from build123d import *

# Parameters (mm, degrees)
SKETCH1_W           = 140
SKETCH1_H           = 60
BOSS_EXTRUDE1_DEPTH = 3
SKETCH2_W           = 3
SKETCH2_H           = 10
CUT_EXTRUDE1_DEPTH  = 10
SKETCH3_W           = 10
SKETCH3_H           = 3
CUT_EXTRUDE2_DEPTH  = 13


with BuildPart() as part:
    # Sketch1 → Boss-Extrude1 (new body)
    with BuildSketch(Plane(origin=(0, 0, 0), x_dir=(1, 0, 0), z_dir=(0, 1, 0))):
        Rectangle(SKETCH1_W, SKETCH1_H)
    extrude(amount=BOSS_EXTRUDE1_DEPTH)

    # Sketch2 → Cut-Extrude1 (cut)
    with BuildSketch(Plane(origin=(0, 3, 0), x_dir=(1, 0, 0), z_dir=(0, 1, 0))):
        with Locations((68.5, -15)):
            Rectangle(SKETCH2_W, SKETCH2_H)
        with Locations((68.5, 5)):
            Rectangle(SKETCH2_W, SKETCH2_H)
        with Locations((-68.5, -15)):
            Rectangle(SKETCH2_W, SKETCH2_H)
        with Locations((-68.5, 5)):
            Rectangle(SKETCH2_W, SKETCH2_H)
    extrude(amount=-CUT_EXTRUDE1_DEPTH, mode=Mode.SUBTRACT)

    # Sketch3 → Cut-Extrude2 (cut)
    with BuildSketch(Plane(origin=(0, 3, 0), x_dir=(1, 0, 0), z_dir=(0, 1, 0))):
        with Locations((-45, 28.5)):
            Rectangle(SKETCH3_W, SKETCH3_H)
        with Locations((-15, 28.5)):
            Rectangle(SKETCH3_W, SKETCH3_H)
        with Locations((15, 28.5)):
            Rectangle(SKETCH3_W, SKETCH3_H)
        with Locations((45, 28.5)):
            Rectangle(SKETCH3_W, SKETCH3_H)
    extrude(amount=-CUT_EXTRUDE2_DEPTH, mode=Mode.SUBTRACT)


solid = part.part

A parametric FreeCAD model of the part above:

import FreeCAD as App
import Part
import Sketcher

V = App.Vector

doc = App.newDocument("Part")
body = doc.addObject("PartDesign::Body", "Body")

# Sketch on XZ plane
sketch1 = body.newObject("Sketcher::SketchObject", "Sketch")
sketch1.AttachmentSupport = (doc.getObject("XZ_Plane"), [""])
sketch1.MapMode = "FlatFace"
sketch1.addGeometry([
    Part.LineSegment(V(-70, -30, 0), V(-70, 30, 0)),
    Part.LineSegment(V(-70, 30, 0), V(70, 30, 0)),
    Part.LineSegment(V(70, 30, 0), V(70, -30, 0)),
    Part.LineSegment(V(70, -30, 0), V(-70, -30, 0)),
], False)
sketch1.addConstraint([
    Sketcher.Constraint("Coincident", 0, 2, 1, 1),
    Sketcher.Constraint("Coincident", 1, 2, 2, 1),
    Sketcher.Constraint("Coincident", 2, 2, 3, 1),
    Sketcher.Constraint("Coincident", 3, 2, 0, 1),
    Sketcher.Constraint("Vertical", 0),
    Sketcher.Constraint("Horizontal", 1),
    Sketcher.Constraint("Vertical", 2),
    Sketcher.Constraint("Horizontal", 3),
    Sketcher.Constraint("Symmetric", 0, 2, 2, 2, -1, 1),
    Sketcher.Constraint("DistanceX", 1, 1, 1, 2, 140.0),
    Sketcher.Constraint("DistanceY", 0, 1, 0, 2, 60.0),
])
pad1 = body.newObject("PartDesign::Pad", "Pad")
pad1.Profile = sketch1
pad1.Length = 3
pad1.Reversed = True

# Sketch on XZ plane
sketch2 = body.newObject("Sketcher::SketchObject", "Sketch001")
sketch2.AttachmentSupport = (doc.getObject("XZ_Plane"), [""])
sketch2.MapMode = "FlatFace"
sketch2.AttachmentOffset = App.Placement(V(0, 0, -3), App.Rotation())
sketch2.addGeometry([
    Part.LineSegment(V(67, 10, 0), V(67, 20, 0)),  # 0
    Part.LineSegment(V(67, 20, 0), V(70, 20, 0)),  # 1
    Part.LineSegment(V(70, 20, 0), V(70, 10, 0)),  # 2
    Part.LineSegment(V(70, 10, 0), V(67, 10, 0)),  # 3
    Part.LineSegment(V(67, -10, 0), V(67, 0, 0)),  # 4
    Part.LineSegment(V(67, 0, 0), V(70, 0, 0)),  # 5
    Part.LineSegment(V(70, 0, 0), V(70, -10, 0)),  # 6
    Part.LineSegment(V(70, -10, 0), V(67, -10, 0)),  # 7
    Part.LineSegment(V(-70, 10, 0), V(-70, 20, 0)),  # 8
    Part.LineSegment(V(-70, 20, 0), V(-67, 20, 0)),  # 9
    Part.LineSegment(V(-67, 20, 0), V(-67, 10, 0)),  # 10
    Part.LineSegment(V(-67, 10, 0), V(-70, 10, 0)),  # 11
    Part.LineSegment(V(-70, -10, 0), V(-70, 0, 0)),  # 12
    Part.LineSegment(V(-70, 0, 0), V(-67, 0, 0)),  # 13
    Part.LineSegment(V(-67, 0, 0), V(-67, -10, 0)),  # 14
    Part.LineSegment(V(-67, -10, 0), V(-70, -10, 0)),  # 15
], False)
sketch2.addConstraint([
    Sketcher.Constraint("Coincident", 0, 2, 1, 1),
    Sketcher.Constraint("Coincident", 1, 2, 2, 1),
    Sketcher.Constraint("Coincident", 2, 2, 3, 1),
    Sketcher.Constraint("Coincident", 3, 2, 0, 1),
    Sketcher.Constraint("Coincident", 4, 2, 5, 1),
    Sketcher.Constraint("Coincident", 5, 2, 6, 1),
    Sketcher.Constraint("Coincident", 6, 2, 7, 1),
    Sketcher.Constraint("Coincident", 7, 2, 4, 1),
    Sketcher.Constraint("Coincident", 8, 2, 9, 1),
    Sketcher.Constraint("Coincident", 9, 2, 10, 1),
    Sketcher.Constraint("Coincident", 10, 2, 11, 1),
    Sketcher.Constraint("Coincident", 11, 2, 8, 1),
    Sketcher.Constraint("Coincident", 12, 2, 13, 1),
    Sketcher.Constraint("Coincident", 13, 2, 14, 1),
    Sketcher.Constraint("Coincident", 14, 2, 15, 1),
    Sketcher.Constraint("Coincident", 15, 2, 12, 1),
    Sketcher.Constraint("Vertical", 0),
    Sketcher.Constraint("Horizontal", 1),
    Sketcher.Constraint("Vertical", 2),
    Sketcher.Constraint("Horizontal", 3),
    Sketcher.Constraint("Vertical", 4),
    Sketcher.Constraint("Horizontal", 5),
    Sketcher.Constraint("Vertical", 6),
    Sketcher.Constraint("Horizontal", 7),
    Sketcher.Constraint("Vertical", 8),
    Sketcher.Constraint("Horizontal", 9),
    Sketcher.Constraint("Vertical", 10),
    Sketcher.Constraint("Horizontal", 11),
    Sketcher.Constraint("Vertical", 12),
    Sketcher.Constraint("Horizontal", 13),
    Sketcher.Constraint("Vertical", 14),
    Sketcher.Constraint("Horizontal", 15),
    Sketcher.Constraint("Symmetric", 7, 2, 10, 2, -1, 1),
    Sketcher.Constraint("Symmetric", 5, 2, 12, 2, -1, 1),
    Sketcher.Constraint("Symmetric", 3, 2, 14, 2, -1, 1),
    Sketcher.Constraint("Symmetric", 1, 2, 8, 2, -2),
    Sketcher.Constraint("Symmetric", 3, 2, 10, 2, -2),
    Sketcher.Constraint("PointOnObject", 4, 2, -1),
    Sketcher.Constraint("Vertical", 2, 2, 5, 2),
    Sketcher.Constraint("Equal", 2, 4),
    Sketcher.Constraint("DistanceX", 1, 1, 1, 2, 3.0),
    Sketcher.Constraint("DistanceY", 0, 1, 0, 2, 10.0),
    Sketcher.Constraint("DistanceX", -1, 1, 0, 2, 67.0),
])
pocket1 = body.newObject("PartDesign::Pocket", "Pocket")
pocket1.Profile = sketch2
pocket1.Length = 10
pocket1.Reversed = True

# Sketch on XZ plane
sketch3 = body.newObject("Sketcher::SketchObject", "Sketch002")
sketch3.AttachmentSupport = (doc.getObject("XZ_Plane"), [""])
sketch3.MapMode = "FlatFace"
sketch3.AttachmentOffset = App.Placement(V(0, 0, -3), App.Rotation())
sketch3.addGeometry([
    Part.LineSegment(V(-50, -30, 0), V(-50, -27, 0)),  # 0
    Part.LineSegment(V(-50, -27, 0), V(-40, -27, 0)),  # 1
    Part.LineSegment(V(-40, -27, 0), V(-40, -30, 0)),  # 2
    Part.LineSegment(V(-40, -30, 0), V(-50, -30, 0)),  # 3
    Part.LineSegment(V(-20, -30, 0), V(-20, -27, 0)),  # 4
    Part.LineSegment(V(-20, -27, 0), V(-10, -27, 0)),  # 5
    Part.LineSegment(V(-10, -27, 0), V(-10, -30, 0)),  # 6
    Part.LineSegment(V(-10, -30, 0), V(-20, -30, 0)),  # 7
    Part.LineSegment(V(10, -30, 0), V(10, -27, 0)),  # 8
    Part.LineSegment(V(10, -27, 0), V(20, -27, 0)),  # 9
    Part.LineSegment(V(20, -27, 0), V(20, -30, 0)),  # 10
    Part.LineSegment(V(20, -30, 0), V(10, -30, 0)),  # 11
    Part.LineSegment(V(40, -30, 0), V(40, -27, 0)),  # 12
    Part.LineSegment(V(40, -27, 0), V(50, -27, 0)),  # 13
    Part.LineSegment(V(50, -27, 0), V(50, -30, 0)),  # 14
    Part.LineSegment(V(50, -30, 0), V(40, -30, 0)),  # 15
], False)
sketch3.addConstraint([
    Sketcher.Constraint("Coincident", 0, 2, 1, 1),
    Sketcher.Constraint("Coincident", 1, 2, 2, 1),
    Sketcher.Constraint("Coincident", 2, 2, 3, 1),
    Sketcher.Constraint("Coincident", 3, 2, 0, 1),
    Sketcher.Constraint("Coincident", 4, 2, 5, 1),
    Sketcher.Constraint("Coincident", 5, 2, 6, 1),
    Sketcher.Constraint("Coincident", 6, 2, 7, 1),
    Sketcher.Constraint("Coincident", 7, 2, 4, 1),
    Sketcher.Constraint("Coincident", 8, 2, 9, 1),
    Sketcher.Constraint("Coincident", 9, 2, 10, 1),
    Sketcher.Constraint("Coincident", 10, 2, 11, 1),
    Sketcher.Constraint("Coincident", 11, 2, 8, 1),
    Sketcher.Constraint("Coincident", 12, 2, 13, 1),
    Sketcher.Constraint("Coincident", 13, 2, 14, 1),
    Sketcher.Constraint("Coincident", 14, 2, 15, 1),
    Sketcher.Constraint("Coincident", 15, 2, 12, 1),
    Sketcher.Constraint("Vertical", 0),
    Sketcher.Constraint("Horizontal", 1),
    Sketcher.Constraint("Vertical", 2),
    Sketcher.Constraint("Horizontal", 3),
    Sketcher.Constraint("Vertical", 4),
    Sketcher.Constraint("Horizontal", 5),
    Sketcher.Constraint("Vertical", 6),
    Sketcher.Constraint("Horizontal", 7),
    Sketcher.Constraint("Vertical", 8),
    Sketcher.Constraint("Horizontal", 9),
    Sketcher.Constraint("Vertical", 10),
    Sketcher.Constraint("Horizontal", 11),
    Sketcher.Constraint("Vertical", 12),
    Sketcher.Constraint("Horizontal", 13),
    Sketcher.Constraint("Vertical", 14),
    Sketcher.Constraint("Horizontal", 15),
    Sketcher.Constraint("Symmetric", 5, 2, 8, 2, -2),
    Sketcher.Constraint("Symmetric", 7, 2, 10, 2, -2),
    Sketcher.Constraint("Symmetric", 1, 2, 12, 2, -2),
    Sketcher.Constraint("Symmetric", 3, 2, 14, 2, -2),
    Sketcher.Constraint("Horizontal", 1, 2, 4, 2),
    Sketcher.Constraint("Horizontal", 3, 2, 6, 2),
    Sketcher.Constraint("Equal", 3, 5),
    Sketcher.Constraint("DistanceX", 1, 1, 1, 2, 10.0),
    Sketcher.Constraint("DistanceY", 0, 1, 0, 2, 3.0),
    Sketcher.Constraint("DistanceX", 0, 2, -1, 1, 50.0),
    Sketcher.Constraint("DistanceY", 0, 2, -1, 1, 27.0),
    Sketcher.Constraint("DistanceX", 4, 2, -1, 1, 20.0),
])
pocket2 = body.newObject("PartDesign::Pocket", "Pocket001")
pocket2.Profile = sketch3
pocket2.Length = 13
pocket2.Reversed = True

doc.recompute()
